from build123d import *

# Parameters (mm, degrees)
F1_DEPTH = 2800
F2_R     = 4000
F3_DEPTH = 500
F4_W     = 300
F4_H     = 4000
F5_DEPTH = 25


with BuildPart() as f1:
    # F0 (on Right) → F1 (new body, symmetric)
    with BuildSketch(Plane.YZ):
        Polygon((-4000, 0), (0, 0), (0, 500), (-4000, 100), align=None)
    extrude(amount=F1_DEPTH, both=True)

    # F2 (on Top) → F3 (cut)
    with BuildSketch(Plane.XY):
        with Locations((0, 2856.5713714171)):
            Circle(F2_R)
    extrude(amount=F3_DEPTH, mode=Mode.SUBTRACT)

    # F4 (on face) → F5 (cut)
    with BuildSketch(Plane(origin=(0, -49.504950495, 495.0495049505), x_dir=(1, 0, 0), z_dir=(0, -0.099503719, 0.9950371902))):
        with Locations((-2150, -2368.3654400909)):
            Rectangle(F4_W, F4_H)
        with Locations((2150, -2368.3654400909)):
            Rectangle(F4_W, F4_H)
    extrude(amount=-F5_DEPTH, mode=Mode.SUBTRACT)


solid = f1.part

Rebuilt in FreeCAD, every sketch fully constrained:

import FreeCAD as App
import Part
import Sketcher
from FreeCAD import Vector
Q = App.Units.Quantity


def add_polygon(sketch, points):
    """Adds a closed chain of lines whose ends are joined by coincident constraints."""
    first, n = sketch.GeometryCount, len(points)
    for a, b in zip(points, points[1:] + points[:1]):
        sketch.addGeometry(Part.LineSegment(App.Vector(*a, 0), App.Vector(*b, 0)), False)
    for i in range(n):
        sketch.addConstraint(Sketcher.Constraint("Coincident", first + i, 2, first + (i + 1) % n, 1))

doc = App.newDocument("Part")
body = doc.addObject("PartDesign::Body", "Body")

# Sketch on YZ plane
sketch1 = doc.addObject("Sketcher::SketchObject", "Sketch")
body.addObject(sketch1)
sketch1.AttachmentSupport = (doc.YZ_Plane, [""])
sketch1.MapMode = "FlatFace"
add_polygon(sketch1, [(-4000, 0), (0, 0), (0, 500), (-4000, 100)])  # lines 0-3
sketch1.addConstraint([
    Sketcher.Constraint("Horizontal", 0),
    Sketcher.Constraint("Vertical", 1),
    Sketcher.Constraint("Vertical", 3),
    Sketcher.Constraint("Coincident", 0, 2, -1, 1),
    Sketcher.Constraint("DistanceX", 0, 1, 0, 2, Q("4000 mm")),
    Sketcher.Constraint("DistanceY", 1, 1, 1, 2, Q("500 mm")),
    Sketcher.Constraint("DistanceY", 3, 2, 3, 1, Q("100 mm")),
])
pad1 = doc.addObject("PartDesign::Pad", "Pad")
body.addObject(pad1)
pad1.Profile = sketch1
pad1.Length = 5600
pad1.Midplane = True

# Sketch on XY plane
sketch2 = doc.addObject("Sketcher::SketchObject", "Sketch001")
body.addObject(sketch2)
sketch2.AttachmentSupport = (doc.XY_Plane, [""])
sketch2.MapMode = "FlatFace"
sketch2.addGeometry(Part.Circle(Vector(0, 2857, 0), Vector(0, 0, 1), 4000), False)
sketch2.addConstraint([
    Sketcher.Constraint("PointOnObject", 0, 3, -2),
    Sketcher.Constraint("Diameter", 0, Q("8000 mm")),
    Sketcher.Constraint("DistanceY", -1, 1, 0, 3, Q("2856.571371 mm")),
])
pocket1 = doc.addObject("PartDesign::Pocket", "Pocket")
body.addObject(pocket1)
pocket1.Profile = sketch2
pocket1.Length = 500
pocket1.Reversed = True

# Sketch on an angled plane
sketch3 = doc.addObject("Sketcher::SketchObject", "Sketch002")
body.addObject(sketch3)
sketch3.Placement = App.Placement(Vector(0, -49.50495, 495.049505), App.Rotation(Vector(1, 0, 0), Vector(0, 0.99503719, 0.099503719), Vector(0, -0.099503719, 0.99503719), "ZXY"))
add_polygon(sketch3, [(-2300, -368), (-2300, -4368), (-2000, -4368), (-2000, -368)])  # lines 0-3
add_polygon(sketch3, [(2000, -368), (2000, -4368), (2300, -4368), (2300, -368)])  # lines 4-7
sketch3.addConstraint([
    Sketcher.Constraint("Vertical", 0),
    Sketcher.Constraint("Horizontal", 1),
    Sketcher.Constraint("Vertical", 2),
    Sketcher.Constraint("Horizontal", 3),
    Sketcher.Constraint("Vertical", 4),
    Sketcher.Constraint("Horizontal", 5),
    Sketcher.Constraint("Vertical", 6),
    Sketcher.Constraint("Horizontal", 7),
    Sketcher.Constraint("Symmetric", 1, 2, 4, 2, -2),
    Sketcher.Constraint("Symmetric", 3, 2, 6, 2, -2),
    Sketcher.Constraint("DistanceX", 1, 1, 1, 2, Q("300 mm")),
    Sketcher.Constraint("DistanceY", 0, 2, 0, 1, Q("3999.999998 mm")),
    Sketcher.Constraint("DistanceX", 0, 2, -1, 1, Q("2300 mm")),
    Sketcher.Constraint("DistanceY", 0, 2, -1, 1, Q("4368.365438 mm")),
])
pocket2 = doc.addObject("PartDesign::Pocket", "Pocket001")
body.addObject(pocket2)
pocket2.Profile = sketch3
pocket2.Length = 25

doc.recompute()
